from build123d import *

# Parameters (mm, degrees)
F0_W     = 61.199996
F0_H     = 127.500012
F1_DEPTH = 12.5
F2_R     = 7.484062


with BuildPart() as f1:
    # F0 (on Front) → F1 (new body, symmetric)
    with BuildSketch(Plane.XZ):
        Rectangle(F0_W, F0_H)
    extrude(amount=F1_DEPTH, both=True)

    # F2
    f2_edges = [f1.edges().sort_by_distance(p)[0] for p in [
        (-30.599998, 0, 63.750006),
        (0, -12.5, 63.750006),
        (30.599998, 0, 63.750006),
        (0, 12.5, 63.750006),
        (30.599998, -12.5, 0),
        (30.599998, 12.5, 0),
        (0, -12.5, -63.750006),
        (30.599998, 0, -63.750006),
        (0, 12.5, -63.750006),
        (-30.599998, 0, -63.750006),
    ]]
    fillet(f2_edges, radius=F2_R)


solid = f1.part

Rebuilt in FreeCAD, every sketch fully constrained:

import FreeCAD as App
import Part
import Sketcher

V = App.Vector
Q = App.Units.Quantity


def edges_at(feature, points):
    """Names of the edges that pass closest to the given points."""
    edges = feature.Shape.Edges
    near = lambda p: min(range(len(edges)), key=lambda i: edges[i].distToShape(Part.Vertex(*p))[0])
    return sorted({f"Edge{near(p) + 1}" for p in points})

doc = App.newDocument("Part")
body = doc.addObject("PartDesign::Body", "Body")

sketch1 = body.newObject("Sketcher::SketchObject", "Sketch")
sketch1.AttachmentSupport = (doc.getObject("XZ_Plane"), [""])
sketch1.MapMode = "FlatFace"
sketch1.addGeometry([
    Part.LineSegment(V(-31, 64, 0), V(-31, -64, 0)),
    Part.LineSegment(V(-31, -64, 0), V(31, -64, 0)),
    Part.LineSegment(V(31, -64, 0), V(31, 64, 0)),
    Part.LineSegment(V(31, 64, 0), V(-31, 64, 0)),
], False)
sketch1.addConstraint([
    Sketcher.Constraint("Coincident", 0, 2, 1, 1),
    Sketcher.Constraint("Coincident", 1, 2, 2, 1),
    Sketcher.Constraint("Coincident", 2, 2, 3, 1),
    Sketcher.Constraint("Coincident", 3, 2, 0, 1),
    Sketcher.Constraint("Vertical", 0),
    Sketcher.Constraint("Horizontal", 1),
    Sketcher.Constraint("Vertical", 2),
    Sketcher.Constraint("Horizontal", 3),
    Sketcher.Constraint("Symmetric", 0, 2, 2, 2, -1, 1),
    Sketcher.Constraint("DistanceY", 0, 2, 0, 1, Q("127.500012 mm")),
    Sketcher.Constraint("DistanceX", 1, 1, 1, 2, Q("61.199996 mm")),
])
pad1 = body.newObject("PartDesign::Pad", "Pad")
pad1.Profile = sketch1
pad1.Length = 25
pad1.Midplane = True
doc.recompute()

fillet = body.newObject("PartDesign::Fillet", "Fillet")
fillet.Base = (pad1, edges_at(pad1, [
    (-30.6, 0, 63.75),
    (0, -12.5, 63.75),
    (30.6, 0, 63.75),
    (0, 12.5, 63.75),
    (30.6, -12.5, 0),
    (30.6, 12.5, 0),
    (0, -12.5, -63.75),
    (30.6, 0, -63.75),
    (0, 12.5, -63.75),
    (-30.6, 0, -63.75),
]))
fillet.Radius = 7.484062

doc.recompute()
